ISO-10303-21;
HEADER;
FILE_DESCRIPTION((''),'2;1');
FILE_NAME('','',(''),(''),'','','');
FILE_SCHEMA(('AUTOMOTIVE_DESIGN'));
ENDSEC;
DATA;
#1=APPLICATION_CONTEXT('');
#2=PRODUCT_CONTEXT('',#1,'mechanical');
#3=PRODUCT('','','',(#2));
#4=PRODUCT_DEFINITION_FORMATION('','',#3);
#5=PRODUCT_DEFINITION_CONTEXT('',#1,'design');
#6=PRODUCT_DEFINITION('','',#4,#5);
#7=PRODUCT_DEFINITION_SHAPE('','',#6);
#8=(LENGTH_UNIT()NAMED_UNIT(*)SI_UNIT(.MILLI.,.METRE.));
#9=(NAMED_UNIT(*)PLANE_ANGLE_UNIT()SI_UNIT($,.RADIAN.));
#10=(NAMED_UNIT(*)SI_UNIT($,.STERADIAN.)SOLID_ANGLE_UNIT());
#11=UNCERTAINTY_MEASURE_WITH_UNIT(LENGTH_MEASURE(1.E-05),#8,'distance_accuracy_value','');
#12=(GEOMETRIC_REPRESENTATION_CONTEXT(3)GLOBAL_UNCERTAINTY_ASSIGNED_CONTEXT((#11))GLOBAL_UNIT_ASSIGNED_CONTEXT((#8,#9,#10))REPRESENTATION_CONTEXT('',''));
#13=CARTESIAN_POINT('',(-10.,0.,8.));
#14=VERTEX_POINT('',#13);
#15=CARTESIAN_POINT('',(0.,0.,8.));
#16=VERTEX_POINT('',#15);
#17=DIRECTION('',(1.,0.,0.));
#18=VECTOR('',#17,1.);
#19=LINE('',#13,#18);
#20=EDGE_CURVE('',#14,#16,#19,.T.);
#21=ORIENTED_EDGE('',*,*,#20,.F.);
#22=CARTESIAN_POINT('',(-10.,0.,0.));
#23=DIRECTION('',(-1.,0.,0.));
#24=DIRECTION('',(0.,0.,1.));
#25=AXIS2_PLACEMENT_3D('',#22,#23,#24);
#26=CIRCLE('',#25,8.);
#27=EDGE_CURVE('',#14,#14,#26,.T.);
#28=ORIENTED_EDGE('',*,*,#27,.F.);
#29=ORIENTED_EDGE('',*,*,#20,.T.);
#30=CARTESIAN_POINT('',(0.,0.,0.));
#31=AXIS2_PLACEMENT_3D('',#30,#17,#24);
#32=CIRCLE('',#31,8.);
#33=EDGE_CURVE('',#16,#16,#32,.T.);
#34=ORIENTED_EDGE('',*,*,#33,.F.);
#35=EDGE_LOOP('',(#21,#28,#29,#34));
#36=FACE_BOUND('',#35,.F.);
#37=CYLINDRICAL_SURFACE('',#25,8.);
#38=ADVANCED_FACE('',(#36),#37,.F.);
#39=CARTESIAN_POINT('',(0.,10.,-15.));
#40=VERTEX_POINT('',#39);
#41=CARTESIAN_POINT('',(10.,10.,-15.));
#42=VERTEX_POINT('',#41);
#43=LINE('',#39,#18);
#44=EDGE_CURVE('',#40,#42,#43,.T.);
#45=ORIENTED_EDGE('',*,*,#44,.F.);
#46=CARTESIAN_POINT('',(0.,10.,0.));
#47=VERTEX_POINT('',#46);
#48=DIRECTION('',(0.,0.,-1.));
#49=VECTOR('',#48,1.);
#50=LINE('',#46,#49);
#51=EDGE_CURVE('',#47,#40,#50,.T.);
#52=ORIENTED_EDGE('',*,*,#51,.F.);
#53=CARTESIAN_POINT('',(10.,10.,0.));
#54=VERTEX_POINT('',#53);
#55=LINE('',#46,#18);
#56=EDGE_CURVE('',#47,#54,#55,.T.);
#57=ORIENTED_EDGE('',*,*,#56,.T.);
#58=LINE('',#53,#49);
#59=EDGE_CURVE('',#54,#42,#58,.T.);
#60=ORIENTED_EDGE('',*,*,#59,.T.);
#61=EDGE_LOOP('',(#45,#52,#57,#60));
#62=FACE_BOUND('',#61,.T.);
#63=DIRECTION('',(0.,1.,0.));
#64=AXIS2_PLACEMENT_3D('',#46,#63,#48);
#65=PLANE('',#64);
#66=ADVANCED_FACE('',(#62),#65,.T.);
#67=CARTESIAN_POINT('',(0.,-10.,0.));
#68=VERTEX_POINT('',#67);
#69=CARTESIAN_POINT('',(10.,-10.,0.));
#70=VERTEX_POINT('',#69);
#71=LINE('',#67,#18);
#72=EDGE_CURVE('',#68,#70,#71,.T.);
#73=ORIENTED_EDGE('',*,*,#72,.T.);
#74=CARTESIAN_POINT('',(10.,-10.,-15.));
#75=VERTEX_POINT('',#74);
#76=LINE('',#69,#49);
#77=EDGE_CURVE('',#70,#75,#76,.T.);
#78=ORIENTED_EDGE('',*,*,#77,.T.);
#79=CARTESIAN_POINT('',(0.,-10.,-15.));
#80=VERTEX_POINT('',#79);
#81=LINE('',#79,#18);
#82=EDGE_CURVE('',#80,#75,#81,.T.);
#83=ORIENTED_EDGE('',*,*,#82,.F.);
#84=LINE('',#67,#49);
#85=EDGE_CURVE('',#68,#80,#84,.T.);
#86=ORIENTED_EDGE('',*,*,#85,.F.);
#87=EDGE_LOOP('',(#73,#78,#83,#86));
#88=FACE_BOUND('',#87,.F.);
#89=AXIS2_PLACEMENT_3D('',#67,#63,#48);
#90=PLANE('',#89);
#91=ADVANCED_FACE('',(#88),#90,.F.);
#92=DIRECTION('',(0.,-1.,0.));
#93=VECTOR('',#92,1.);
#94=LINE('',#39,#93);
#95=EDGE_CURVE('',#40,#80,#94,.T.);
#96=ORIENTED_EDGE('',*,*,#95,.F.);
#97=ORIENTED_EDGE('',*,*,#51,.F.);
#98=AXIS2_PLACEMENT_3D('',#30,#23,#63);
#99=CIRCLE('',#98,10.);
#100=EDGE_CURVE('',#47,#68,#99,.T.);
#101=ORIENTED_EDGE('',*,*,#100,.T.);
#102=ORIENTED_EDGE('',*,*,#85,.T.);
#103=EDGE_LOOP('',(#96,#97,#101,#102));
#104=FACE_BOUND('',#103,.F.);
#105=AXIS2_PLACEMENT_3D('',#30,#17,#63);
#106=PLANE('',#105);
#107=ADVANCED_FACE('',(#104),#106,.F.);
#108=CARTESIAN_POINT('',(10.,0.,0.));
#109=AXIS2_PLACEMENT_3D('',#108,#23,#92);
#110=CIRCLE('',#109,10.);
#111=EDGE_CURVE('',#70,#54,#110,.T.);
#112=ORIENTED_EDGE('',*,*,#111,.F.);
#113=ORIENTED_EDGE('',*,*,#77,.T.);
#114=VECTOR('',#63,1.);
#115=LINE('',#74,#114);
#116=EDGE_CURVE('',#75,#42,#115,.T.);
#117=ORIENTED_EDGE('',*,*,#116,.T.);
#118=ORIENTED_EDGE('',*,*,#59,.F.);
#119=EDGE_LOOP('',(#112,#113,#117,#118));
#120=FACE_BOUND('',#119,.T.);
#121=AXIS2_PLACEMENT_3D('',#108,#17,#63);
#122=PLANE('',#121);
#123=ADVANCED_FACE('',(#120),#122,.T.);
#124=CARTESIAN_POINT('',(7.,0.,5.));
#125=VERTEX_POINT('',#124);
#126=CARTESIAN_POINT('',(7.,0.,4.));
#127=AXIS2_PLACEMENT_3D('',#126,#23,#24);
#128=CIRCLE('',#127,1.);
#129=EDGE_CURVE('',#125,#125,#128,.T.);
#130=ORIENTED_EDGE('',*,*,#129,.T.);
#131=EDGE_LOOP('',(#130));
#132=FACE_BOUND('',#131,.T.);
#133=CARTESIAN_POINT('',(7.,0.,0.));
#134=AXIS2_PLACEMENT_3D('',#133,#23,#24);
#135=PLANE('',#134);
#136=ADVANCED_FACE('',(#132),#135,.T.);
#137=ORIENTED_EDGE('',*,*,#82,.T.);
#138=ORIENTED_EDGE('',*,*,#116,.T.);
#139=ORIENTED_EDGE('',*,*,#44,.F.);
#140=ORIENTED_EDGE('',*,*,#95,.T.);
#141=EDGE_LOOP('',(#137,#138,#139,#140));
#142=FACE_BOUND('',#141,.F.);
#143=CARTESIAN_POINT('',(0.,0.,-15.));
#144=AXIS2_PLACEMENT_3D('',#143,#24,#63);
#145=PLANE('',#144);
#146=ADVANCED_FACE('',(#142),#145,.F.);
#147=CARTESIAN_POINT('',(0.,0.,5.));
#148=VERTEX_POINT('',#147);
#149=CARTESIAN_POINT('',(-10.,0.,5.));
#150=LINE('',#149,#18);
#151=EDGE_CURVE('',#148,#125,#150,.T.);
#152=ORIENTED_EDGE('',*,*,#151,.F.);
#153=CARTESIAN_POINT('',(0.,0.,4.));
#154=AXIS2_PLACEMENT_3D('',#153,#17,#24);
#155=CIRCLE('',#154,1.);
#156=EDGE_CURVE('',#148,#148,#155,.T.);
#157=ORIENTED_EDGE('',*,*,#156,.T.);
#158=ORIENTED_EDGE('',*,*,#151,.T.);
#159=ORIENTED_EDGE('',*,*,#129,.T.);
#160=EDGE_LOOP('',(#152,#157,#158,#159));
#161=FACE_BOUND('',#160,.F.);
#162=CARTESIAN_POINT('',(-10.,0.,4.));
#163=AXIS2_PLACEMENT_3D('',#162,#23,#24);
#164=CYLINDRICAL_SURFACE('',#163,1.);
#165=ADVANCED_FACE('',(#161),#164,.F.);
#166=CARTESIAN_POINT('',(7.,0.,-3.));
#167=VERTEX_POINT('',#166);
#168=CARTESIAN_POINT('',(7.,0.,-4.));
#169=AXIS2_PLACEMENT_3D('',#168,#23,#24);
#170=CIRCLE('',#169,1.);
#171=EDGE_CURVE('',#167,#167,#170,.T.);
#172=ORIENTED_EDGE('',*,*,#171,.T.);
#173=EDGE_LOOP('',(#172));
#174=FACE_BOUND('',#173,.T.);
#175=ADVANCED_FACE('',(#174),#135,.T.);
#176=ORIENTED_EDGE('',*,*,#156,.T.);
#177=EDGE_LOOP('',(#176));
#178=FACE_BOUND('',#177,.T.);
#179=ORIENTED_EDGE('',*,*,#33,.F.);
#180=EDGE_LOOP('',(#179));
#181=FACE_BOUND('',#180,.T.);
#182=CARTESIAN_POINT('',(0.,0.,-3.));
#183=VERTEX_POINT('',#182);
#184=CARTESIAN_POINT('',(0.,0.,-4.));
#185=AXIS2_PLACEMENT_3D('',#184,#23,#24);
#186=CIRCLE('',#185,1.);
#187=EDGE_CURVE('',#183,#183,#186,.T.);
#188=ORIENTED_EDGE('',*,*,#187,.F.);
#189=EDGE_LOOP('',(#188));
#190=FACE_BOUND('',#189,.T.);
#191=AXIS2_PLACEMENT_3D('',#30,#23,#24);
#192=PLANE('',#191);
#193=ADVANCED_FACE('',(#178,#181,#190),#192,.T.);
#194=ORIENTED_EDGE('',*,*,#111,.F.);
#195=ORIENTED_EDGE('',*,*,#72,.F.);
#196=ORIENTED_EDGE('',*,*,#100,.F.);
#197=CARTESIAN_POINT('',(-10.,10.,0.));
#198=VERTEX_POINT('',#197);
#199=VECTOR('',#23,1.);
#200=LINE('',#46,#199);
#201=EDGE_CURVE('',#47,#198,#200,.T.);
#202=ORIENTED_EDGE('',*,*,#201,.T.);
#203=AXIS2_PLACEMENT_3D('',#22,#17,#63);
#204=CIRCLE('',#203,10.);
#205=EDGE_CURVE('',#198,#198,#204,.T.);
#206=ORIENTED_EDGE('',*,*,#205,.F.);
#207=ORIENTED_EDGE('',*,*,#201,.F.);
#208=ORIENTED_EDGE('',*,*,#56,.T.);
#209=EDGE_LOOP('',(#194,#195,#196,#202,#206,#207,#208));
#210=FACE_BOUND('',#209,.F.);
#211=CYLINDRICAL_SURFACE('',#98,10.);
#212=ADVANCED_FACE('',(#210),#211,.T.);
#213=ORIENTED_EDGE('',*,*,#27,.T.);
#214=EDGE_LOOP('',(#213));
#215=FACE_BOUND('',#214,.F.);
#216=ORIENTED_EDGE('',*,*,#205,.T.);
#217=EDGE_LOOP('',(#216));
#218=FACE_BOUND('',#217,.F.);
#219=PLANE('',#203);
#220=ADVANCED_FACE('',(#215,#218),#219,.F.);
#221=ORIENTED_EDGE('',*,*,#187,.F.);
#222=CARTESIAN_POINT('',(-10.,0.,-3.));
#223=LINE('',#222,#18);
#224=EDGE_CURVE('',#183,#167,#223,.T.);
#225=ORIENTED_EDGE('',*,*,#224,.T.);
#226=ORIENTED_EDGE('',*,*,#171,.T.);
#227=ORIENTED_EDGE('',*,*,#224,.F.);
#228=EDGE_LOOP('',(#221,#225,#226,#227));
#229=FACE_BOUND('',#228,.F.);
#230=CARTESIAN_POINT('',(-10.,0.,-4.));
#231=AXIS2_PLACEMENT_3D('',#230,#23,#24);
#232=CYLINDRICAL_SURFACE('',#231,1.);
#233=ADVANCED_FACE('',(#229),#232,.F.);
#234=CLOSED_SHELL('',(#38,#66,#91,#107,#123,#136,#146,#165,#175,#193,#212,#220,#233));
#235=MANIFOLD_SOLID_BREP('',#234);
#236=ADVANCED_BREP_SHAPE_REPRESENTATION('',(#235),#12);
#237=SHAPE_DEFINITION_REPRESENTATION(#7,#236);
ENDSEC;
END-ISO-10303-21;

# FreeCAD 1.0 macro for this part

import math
import FreeCAD as App
import Part
import Sketcher
from FreeCAD import Vector
Q = App.Units.Quantity

doc = App.newDocument("Part")
body = doc.addObject("PartDesign::Body", "Body")

sketch1 = doc.addObject("Sketcher::SketchObject", "Sketch")
body.addObject(sketch1)
sketch1.AttachmentSupport = (doc.YZ_Plane, [""])
sketch1.MapMode = "FlatFace"
sketch1.addGeometry([
    Part.ArcOfCircle(Part.Circle(Vector(0, 0, 0), Vector(0, 0, 1), 10), math.radians(0), math.radians(180)),
    Part.LineSegment(Vector(-10, 0, 0), Vector(-10, -15, 0)),
    Part.LineSegment(Vector(-10, -15, 0), Vector(10, -15, 0)),
    Part.LineSegment(Vector(10, -15, 0), Vector(10, 0, 0)),
], False)
sketch1.addConstraint([
    Sketcher.Constraint("Tangent", 0, 2, 1, 1),
    Sketcher.Constraint("Coincident", 1, 2, 2, 1),
    Sketcher.Constraint("Coincident", 2, 2, 3, 1),
    Sketcher.Constraint("Tangent", 3, 2, 0, 1),
    Sketcher.Constraint("Vertical", 1),
    Sketcher.Constraint("Horizontal", 2),
    Sketcher.Constraint("Vertical", 3),
    Sketcher.Constraint("Coincident", 0, 3, -1, 1),
    Sketcher.Constraint("Radius", 0, Q("10 mm")),
    Sketcher.Constraint("DistanceY", 1, 2, 1, 1, Q("15 mm")),
])
pad1 = doc.addObject("PartDesign::Pad", "Pad")
body.addObject(pad1)
pad1.Profile = sketch1
pad1.Length = 10

sketch2 = doc.addObject("Sketcher::SketchObject", "Sketch001")
body.addObject(sketch2)
sketch2.AttachmentSupport = (doc.YZ_Plane, [""])
sketch2.MapMode = "FlatFace"
sketch2.addGeometry(Part.Circle(Vector(0, 0, 0), Vector(0, 0, 1), 10), False)
sketch2.addConstraint([
    Sketcher.Constraint("Coincident", 0, 3, -1, 1),
    Sketcher.Constraint("Diameter", 0, Q("20 mm")),
])
pad2 = doc.addObject("PartDesign::Pad", "Pad001")
body.addObject(pad2)
pad2.Profile = sketch2
pad2.Length = 10
pad2.Reversed = True

sketch3 = doc.addObject("Sketcher::SketchObject", "Sketch002")
body.addObject(sketch3)
sketch3.AttachmentSupport = (doc.YZ_Plane, [""])
sketch3.MapMode = "FlatFace"
sketch3.AttachmentOffset = App.Placement(Vector(0, 0, -10), App.Rotation())
sketch3.addGeometry([
    Part.Circle(Vector(0, 0, 0), Vector(0, 0, 1), 8),
    Part.Circle(Vector(0, 4, 0), Vector(0, 0, 1), 1),
    Part.Circle(Vector(0, -4, 0), Vector(0, 0, 1), 1),
], False)
sketch3.addConstraint([
    Sketcher.Constraint("Coincident", 0, 3, -1, 1),
    Sketcher.Constraint("Equal", 1, 2),
    Sketcher.Constraint("Symmetric", 1, 3, 2, 3, -1, 1),
    Sketcher.Constraint("PointOnObject", 1, 3, -2),
    Sketcher.Constraint("Diameter", 0, Q("16 mm")),
    Sketcher.Constraint("Diameter", 1, Q("2 mm")),
    Sketcher.Constraint("DistanceY", 2, 3, 1, 3, Q("8 mm")),
])
pocket1 = doc.addObject("PartDesign::Pocket", "Pocket")
body.addObject(pocket1)
pocket1.Profile = sketch3
pocket1.Length = 10
pocket1.Reversed = True

sketch4 = doc.addObject("Sketcher::SketchObject", "Sketch003")
body.addObject(sketch4)
sketch4.AttachmentSupport = (doc.YZ_Plane, [""])
sketch4.MapMode = "FlatFace"
sketch4.AttachmentOffset = App.Placement(Vector(0, 0, -10), App.Rotation())
sketch4.addGeometry([
    Part.Circle(Vector(0, 4, 0), Vector(0, 0, 1), 1),
    Part.Circle(Vector(0, -4, 0), Vector(0, 0, 1), 1),
], False)
sketch4.addConstraint([
    Sketcher.Constraint("Equal", 0, 1),
    Sketcher.Constraint("Symmetric", 0, 3, 1, 3, -1, 1),
    Sketcher.Constraint("PointOnObject", 0, 3, -2),
    Sketcher.Constraint("Diameter", 0, Q("2 mm")),
    Sketcher.Constraint("DistanceY", 1, 3, 0, 3, Q("8 mm")),
])
pocket2 = doc.addObject("PartDesign::Pocket", "Pocket001")
body.addObject(pocket2)
pocket2.Profile = sketch4
pocket2.Length = 17
pocket2.Reversed = True

doc.recompute()
